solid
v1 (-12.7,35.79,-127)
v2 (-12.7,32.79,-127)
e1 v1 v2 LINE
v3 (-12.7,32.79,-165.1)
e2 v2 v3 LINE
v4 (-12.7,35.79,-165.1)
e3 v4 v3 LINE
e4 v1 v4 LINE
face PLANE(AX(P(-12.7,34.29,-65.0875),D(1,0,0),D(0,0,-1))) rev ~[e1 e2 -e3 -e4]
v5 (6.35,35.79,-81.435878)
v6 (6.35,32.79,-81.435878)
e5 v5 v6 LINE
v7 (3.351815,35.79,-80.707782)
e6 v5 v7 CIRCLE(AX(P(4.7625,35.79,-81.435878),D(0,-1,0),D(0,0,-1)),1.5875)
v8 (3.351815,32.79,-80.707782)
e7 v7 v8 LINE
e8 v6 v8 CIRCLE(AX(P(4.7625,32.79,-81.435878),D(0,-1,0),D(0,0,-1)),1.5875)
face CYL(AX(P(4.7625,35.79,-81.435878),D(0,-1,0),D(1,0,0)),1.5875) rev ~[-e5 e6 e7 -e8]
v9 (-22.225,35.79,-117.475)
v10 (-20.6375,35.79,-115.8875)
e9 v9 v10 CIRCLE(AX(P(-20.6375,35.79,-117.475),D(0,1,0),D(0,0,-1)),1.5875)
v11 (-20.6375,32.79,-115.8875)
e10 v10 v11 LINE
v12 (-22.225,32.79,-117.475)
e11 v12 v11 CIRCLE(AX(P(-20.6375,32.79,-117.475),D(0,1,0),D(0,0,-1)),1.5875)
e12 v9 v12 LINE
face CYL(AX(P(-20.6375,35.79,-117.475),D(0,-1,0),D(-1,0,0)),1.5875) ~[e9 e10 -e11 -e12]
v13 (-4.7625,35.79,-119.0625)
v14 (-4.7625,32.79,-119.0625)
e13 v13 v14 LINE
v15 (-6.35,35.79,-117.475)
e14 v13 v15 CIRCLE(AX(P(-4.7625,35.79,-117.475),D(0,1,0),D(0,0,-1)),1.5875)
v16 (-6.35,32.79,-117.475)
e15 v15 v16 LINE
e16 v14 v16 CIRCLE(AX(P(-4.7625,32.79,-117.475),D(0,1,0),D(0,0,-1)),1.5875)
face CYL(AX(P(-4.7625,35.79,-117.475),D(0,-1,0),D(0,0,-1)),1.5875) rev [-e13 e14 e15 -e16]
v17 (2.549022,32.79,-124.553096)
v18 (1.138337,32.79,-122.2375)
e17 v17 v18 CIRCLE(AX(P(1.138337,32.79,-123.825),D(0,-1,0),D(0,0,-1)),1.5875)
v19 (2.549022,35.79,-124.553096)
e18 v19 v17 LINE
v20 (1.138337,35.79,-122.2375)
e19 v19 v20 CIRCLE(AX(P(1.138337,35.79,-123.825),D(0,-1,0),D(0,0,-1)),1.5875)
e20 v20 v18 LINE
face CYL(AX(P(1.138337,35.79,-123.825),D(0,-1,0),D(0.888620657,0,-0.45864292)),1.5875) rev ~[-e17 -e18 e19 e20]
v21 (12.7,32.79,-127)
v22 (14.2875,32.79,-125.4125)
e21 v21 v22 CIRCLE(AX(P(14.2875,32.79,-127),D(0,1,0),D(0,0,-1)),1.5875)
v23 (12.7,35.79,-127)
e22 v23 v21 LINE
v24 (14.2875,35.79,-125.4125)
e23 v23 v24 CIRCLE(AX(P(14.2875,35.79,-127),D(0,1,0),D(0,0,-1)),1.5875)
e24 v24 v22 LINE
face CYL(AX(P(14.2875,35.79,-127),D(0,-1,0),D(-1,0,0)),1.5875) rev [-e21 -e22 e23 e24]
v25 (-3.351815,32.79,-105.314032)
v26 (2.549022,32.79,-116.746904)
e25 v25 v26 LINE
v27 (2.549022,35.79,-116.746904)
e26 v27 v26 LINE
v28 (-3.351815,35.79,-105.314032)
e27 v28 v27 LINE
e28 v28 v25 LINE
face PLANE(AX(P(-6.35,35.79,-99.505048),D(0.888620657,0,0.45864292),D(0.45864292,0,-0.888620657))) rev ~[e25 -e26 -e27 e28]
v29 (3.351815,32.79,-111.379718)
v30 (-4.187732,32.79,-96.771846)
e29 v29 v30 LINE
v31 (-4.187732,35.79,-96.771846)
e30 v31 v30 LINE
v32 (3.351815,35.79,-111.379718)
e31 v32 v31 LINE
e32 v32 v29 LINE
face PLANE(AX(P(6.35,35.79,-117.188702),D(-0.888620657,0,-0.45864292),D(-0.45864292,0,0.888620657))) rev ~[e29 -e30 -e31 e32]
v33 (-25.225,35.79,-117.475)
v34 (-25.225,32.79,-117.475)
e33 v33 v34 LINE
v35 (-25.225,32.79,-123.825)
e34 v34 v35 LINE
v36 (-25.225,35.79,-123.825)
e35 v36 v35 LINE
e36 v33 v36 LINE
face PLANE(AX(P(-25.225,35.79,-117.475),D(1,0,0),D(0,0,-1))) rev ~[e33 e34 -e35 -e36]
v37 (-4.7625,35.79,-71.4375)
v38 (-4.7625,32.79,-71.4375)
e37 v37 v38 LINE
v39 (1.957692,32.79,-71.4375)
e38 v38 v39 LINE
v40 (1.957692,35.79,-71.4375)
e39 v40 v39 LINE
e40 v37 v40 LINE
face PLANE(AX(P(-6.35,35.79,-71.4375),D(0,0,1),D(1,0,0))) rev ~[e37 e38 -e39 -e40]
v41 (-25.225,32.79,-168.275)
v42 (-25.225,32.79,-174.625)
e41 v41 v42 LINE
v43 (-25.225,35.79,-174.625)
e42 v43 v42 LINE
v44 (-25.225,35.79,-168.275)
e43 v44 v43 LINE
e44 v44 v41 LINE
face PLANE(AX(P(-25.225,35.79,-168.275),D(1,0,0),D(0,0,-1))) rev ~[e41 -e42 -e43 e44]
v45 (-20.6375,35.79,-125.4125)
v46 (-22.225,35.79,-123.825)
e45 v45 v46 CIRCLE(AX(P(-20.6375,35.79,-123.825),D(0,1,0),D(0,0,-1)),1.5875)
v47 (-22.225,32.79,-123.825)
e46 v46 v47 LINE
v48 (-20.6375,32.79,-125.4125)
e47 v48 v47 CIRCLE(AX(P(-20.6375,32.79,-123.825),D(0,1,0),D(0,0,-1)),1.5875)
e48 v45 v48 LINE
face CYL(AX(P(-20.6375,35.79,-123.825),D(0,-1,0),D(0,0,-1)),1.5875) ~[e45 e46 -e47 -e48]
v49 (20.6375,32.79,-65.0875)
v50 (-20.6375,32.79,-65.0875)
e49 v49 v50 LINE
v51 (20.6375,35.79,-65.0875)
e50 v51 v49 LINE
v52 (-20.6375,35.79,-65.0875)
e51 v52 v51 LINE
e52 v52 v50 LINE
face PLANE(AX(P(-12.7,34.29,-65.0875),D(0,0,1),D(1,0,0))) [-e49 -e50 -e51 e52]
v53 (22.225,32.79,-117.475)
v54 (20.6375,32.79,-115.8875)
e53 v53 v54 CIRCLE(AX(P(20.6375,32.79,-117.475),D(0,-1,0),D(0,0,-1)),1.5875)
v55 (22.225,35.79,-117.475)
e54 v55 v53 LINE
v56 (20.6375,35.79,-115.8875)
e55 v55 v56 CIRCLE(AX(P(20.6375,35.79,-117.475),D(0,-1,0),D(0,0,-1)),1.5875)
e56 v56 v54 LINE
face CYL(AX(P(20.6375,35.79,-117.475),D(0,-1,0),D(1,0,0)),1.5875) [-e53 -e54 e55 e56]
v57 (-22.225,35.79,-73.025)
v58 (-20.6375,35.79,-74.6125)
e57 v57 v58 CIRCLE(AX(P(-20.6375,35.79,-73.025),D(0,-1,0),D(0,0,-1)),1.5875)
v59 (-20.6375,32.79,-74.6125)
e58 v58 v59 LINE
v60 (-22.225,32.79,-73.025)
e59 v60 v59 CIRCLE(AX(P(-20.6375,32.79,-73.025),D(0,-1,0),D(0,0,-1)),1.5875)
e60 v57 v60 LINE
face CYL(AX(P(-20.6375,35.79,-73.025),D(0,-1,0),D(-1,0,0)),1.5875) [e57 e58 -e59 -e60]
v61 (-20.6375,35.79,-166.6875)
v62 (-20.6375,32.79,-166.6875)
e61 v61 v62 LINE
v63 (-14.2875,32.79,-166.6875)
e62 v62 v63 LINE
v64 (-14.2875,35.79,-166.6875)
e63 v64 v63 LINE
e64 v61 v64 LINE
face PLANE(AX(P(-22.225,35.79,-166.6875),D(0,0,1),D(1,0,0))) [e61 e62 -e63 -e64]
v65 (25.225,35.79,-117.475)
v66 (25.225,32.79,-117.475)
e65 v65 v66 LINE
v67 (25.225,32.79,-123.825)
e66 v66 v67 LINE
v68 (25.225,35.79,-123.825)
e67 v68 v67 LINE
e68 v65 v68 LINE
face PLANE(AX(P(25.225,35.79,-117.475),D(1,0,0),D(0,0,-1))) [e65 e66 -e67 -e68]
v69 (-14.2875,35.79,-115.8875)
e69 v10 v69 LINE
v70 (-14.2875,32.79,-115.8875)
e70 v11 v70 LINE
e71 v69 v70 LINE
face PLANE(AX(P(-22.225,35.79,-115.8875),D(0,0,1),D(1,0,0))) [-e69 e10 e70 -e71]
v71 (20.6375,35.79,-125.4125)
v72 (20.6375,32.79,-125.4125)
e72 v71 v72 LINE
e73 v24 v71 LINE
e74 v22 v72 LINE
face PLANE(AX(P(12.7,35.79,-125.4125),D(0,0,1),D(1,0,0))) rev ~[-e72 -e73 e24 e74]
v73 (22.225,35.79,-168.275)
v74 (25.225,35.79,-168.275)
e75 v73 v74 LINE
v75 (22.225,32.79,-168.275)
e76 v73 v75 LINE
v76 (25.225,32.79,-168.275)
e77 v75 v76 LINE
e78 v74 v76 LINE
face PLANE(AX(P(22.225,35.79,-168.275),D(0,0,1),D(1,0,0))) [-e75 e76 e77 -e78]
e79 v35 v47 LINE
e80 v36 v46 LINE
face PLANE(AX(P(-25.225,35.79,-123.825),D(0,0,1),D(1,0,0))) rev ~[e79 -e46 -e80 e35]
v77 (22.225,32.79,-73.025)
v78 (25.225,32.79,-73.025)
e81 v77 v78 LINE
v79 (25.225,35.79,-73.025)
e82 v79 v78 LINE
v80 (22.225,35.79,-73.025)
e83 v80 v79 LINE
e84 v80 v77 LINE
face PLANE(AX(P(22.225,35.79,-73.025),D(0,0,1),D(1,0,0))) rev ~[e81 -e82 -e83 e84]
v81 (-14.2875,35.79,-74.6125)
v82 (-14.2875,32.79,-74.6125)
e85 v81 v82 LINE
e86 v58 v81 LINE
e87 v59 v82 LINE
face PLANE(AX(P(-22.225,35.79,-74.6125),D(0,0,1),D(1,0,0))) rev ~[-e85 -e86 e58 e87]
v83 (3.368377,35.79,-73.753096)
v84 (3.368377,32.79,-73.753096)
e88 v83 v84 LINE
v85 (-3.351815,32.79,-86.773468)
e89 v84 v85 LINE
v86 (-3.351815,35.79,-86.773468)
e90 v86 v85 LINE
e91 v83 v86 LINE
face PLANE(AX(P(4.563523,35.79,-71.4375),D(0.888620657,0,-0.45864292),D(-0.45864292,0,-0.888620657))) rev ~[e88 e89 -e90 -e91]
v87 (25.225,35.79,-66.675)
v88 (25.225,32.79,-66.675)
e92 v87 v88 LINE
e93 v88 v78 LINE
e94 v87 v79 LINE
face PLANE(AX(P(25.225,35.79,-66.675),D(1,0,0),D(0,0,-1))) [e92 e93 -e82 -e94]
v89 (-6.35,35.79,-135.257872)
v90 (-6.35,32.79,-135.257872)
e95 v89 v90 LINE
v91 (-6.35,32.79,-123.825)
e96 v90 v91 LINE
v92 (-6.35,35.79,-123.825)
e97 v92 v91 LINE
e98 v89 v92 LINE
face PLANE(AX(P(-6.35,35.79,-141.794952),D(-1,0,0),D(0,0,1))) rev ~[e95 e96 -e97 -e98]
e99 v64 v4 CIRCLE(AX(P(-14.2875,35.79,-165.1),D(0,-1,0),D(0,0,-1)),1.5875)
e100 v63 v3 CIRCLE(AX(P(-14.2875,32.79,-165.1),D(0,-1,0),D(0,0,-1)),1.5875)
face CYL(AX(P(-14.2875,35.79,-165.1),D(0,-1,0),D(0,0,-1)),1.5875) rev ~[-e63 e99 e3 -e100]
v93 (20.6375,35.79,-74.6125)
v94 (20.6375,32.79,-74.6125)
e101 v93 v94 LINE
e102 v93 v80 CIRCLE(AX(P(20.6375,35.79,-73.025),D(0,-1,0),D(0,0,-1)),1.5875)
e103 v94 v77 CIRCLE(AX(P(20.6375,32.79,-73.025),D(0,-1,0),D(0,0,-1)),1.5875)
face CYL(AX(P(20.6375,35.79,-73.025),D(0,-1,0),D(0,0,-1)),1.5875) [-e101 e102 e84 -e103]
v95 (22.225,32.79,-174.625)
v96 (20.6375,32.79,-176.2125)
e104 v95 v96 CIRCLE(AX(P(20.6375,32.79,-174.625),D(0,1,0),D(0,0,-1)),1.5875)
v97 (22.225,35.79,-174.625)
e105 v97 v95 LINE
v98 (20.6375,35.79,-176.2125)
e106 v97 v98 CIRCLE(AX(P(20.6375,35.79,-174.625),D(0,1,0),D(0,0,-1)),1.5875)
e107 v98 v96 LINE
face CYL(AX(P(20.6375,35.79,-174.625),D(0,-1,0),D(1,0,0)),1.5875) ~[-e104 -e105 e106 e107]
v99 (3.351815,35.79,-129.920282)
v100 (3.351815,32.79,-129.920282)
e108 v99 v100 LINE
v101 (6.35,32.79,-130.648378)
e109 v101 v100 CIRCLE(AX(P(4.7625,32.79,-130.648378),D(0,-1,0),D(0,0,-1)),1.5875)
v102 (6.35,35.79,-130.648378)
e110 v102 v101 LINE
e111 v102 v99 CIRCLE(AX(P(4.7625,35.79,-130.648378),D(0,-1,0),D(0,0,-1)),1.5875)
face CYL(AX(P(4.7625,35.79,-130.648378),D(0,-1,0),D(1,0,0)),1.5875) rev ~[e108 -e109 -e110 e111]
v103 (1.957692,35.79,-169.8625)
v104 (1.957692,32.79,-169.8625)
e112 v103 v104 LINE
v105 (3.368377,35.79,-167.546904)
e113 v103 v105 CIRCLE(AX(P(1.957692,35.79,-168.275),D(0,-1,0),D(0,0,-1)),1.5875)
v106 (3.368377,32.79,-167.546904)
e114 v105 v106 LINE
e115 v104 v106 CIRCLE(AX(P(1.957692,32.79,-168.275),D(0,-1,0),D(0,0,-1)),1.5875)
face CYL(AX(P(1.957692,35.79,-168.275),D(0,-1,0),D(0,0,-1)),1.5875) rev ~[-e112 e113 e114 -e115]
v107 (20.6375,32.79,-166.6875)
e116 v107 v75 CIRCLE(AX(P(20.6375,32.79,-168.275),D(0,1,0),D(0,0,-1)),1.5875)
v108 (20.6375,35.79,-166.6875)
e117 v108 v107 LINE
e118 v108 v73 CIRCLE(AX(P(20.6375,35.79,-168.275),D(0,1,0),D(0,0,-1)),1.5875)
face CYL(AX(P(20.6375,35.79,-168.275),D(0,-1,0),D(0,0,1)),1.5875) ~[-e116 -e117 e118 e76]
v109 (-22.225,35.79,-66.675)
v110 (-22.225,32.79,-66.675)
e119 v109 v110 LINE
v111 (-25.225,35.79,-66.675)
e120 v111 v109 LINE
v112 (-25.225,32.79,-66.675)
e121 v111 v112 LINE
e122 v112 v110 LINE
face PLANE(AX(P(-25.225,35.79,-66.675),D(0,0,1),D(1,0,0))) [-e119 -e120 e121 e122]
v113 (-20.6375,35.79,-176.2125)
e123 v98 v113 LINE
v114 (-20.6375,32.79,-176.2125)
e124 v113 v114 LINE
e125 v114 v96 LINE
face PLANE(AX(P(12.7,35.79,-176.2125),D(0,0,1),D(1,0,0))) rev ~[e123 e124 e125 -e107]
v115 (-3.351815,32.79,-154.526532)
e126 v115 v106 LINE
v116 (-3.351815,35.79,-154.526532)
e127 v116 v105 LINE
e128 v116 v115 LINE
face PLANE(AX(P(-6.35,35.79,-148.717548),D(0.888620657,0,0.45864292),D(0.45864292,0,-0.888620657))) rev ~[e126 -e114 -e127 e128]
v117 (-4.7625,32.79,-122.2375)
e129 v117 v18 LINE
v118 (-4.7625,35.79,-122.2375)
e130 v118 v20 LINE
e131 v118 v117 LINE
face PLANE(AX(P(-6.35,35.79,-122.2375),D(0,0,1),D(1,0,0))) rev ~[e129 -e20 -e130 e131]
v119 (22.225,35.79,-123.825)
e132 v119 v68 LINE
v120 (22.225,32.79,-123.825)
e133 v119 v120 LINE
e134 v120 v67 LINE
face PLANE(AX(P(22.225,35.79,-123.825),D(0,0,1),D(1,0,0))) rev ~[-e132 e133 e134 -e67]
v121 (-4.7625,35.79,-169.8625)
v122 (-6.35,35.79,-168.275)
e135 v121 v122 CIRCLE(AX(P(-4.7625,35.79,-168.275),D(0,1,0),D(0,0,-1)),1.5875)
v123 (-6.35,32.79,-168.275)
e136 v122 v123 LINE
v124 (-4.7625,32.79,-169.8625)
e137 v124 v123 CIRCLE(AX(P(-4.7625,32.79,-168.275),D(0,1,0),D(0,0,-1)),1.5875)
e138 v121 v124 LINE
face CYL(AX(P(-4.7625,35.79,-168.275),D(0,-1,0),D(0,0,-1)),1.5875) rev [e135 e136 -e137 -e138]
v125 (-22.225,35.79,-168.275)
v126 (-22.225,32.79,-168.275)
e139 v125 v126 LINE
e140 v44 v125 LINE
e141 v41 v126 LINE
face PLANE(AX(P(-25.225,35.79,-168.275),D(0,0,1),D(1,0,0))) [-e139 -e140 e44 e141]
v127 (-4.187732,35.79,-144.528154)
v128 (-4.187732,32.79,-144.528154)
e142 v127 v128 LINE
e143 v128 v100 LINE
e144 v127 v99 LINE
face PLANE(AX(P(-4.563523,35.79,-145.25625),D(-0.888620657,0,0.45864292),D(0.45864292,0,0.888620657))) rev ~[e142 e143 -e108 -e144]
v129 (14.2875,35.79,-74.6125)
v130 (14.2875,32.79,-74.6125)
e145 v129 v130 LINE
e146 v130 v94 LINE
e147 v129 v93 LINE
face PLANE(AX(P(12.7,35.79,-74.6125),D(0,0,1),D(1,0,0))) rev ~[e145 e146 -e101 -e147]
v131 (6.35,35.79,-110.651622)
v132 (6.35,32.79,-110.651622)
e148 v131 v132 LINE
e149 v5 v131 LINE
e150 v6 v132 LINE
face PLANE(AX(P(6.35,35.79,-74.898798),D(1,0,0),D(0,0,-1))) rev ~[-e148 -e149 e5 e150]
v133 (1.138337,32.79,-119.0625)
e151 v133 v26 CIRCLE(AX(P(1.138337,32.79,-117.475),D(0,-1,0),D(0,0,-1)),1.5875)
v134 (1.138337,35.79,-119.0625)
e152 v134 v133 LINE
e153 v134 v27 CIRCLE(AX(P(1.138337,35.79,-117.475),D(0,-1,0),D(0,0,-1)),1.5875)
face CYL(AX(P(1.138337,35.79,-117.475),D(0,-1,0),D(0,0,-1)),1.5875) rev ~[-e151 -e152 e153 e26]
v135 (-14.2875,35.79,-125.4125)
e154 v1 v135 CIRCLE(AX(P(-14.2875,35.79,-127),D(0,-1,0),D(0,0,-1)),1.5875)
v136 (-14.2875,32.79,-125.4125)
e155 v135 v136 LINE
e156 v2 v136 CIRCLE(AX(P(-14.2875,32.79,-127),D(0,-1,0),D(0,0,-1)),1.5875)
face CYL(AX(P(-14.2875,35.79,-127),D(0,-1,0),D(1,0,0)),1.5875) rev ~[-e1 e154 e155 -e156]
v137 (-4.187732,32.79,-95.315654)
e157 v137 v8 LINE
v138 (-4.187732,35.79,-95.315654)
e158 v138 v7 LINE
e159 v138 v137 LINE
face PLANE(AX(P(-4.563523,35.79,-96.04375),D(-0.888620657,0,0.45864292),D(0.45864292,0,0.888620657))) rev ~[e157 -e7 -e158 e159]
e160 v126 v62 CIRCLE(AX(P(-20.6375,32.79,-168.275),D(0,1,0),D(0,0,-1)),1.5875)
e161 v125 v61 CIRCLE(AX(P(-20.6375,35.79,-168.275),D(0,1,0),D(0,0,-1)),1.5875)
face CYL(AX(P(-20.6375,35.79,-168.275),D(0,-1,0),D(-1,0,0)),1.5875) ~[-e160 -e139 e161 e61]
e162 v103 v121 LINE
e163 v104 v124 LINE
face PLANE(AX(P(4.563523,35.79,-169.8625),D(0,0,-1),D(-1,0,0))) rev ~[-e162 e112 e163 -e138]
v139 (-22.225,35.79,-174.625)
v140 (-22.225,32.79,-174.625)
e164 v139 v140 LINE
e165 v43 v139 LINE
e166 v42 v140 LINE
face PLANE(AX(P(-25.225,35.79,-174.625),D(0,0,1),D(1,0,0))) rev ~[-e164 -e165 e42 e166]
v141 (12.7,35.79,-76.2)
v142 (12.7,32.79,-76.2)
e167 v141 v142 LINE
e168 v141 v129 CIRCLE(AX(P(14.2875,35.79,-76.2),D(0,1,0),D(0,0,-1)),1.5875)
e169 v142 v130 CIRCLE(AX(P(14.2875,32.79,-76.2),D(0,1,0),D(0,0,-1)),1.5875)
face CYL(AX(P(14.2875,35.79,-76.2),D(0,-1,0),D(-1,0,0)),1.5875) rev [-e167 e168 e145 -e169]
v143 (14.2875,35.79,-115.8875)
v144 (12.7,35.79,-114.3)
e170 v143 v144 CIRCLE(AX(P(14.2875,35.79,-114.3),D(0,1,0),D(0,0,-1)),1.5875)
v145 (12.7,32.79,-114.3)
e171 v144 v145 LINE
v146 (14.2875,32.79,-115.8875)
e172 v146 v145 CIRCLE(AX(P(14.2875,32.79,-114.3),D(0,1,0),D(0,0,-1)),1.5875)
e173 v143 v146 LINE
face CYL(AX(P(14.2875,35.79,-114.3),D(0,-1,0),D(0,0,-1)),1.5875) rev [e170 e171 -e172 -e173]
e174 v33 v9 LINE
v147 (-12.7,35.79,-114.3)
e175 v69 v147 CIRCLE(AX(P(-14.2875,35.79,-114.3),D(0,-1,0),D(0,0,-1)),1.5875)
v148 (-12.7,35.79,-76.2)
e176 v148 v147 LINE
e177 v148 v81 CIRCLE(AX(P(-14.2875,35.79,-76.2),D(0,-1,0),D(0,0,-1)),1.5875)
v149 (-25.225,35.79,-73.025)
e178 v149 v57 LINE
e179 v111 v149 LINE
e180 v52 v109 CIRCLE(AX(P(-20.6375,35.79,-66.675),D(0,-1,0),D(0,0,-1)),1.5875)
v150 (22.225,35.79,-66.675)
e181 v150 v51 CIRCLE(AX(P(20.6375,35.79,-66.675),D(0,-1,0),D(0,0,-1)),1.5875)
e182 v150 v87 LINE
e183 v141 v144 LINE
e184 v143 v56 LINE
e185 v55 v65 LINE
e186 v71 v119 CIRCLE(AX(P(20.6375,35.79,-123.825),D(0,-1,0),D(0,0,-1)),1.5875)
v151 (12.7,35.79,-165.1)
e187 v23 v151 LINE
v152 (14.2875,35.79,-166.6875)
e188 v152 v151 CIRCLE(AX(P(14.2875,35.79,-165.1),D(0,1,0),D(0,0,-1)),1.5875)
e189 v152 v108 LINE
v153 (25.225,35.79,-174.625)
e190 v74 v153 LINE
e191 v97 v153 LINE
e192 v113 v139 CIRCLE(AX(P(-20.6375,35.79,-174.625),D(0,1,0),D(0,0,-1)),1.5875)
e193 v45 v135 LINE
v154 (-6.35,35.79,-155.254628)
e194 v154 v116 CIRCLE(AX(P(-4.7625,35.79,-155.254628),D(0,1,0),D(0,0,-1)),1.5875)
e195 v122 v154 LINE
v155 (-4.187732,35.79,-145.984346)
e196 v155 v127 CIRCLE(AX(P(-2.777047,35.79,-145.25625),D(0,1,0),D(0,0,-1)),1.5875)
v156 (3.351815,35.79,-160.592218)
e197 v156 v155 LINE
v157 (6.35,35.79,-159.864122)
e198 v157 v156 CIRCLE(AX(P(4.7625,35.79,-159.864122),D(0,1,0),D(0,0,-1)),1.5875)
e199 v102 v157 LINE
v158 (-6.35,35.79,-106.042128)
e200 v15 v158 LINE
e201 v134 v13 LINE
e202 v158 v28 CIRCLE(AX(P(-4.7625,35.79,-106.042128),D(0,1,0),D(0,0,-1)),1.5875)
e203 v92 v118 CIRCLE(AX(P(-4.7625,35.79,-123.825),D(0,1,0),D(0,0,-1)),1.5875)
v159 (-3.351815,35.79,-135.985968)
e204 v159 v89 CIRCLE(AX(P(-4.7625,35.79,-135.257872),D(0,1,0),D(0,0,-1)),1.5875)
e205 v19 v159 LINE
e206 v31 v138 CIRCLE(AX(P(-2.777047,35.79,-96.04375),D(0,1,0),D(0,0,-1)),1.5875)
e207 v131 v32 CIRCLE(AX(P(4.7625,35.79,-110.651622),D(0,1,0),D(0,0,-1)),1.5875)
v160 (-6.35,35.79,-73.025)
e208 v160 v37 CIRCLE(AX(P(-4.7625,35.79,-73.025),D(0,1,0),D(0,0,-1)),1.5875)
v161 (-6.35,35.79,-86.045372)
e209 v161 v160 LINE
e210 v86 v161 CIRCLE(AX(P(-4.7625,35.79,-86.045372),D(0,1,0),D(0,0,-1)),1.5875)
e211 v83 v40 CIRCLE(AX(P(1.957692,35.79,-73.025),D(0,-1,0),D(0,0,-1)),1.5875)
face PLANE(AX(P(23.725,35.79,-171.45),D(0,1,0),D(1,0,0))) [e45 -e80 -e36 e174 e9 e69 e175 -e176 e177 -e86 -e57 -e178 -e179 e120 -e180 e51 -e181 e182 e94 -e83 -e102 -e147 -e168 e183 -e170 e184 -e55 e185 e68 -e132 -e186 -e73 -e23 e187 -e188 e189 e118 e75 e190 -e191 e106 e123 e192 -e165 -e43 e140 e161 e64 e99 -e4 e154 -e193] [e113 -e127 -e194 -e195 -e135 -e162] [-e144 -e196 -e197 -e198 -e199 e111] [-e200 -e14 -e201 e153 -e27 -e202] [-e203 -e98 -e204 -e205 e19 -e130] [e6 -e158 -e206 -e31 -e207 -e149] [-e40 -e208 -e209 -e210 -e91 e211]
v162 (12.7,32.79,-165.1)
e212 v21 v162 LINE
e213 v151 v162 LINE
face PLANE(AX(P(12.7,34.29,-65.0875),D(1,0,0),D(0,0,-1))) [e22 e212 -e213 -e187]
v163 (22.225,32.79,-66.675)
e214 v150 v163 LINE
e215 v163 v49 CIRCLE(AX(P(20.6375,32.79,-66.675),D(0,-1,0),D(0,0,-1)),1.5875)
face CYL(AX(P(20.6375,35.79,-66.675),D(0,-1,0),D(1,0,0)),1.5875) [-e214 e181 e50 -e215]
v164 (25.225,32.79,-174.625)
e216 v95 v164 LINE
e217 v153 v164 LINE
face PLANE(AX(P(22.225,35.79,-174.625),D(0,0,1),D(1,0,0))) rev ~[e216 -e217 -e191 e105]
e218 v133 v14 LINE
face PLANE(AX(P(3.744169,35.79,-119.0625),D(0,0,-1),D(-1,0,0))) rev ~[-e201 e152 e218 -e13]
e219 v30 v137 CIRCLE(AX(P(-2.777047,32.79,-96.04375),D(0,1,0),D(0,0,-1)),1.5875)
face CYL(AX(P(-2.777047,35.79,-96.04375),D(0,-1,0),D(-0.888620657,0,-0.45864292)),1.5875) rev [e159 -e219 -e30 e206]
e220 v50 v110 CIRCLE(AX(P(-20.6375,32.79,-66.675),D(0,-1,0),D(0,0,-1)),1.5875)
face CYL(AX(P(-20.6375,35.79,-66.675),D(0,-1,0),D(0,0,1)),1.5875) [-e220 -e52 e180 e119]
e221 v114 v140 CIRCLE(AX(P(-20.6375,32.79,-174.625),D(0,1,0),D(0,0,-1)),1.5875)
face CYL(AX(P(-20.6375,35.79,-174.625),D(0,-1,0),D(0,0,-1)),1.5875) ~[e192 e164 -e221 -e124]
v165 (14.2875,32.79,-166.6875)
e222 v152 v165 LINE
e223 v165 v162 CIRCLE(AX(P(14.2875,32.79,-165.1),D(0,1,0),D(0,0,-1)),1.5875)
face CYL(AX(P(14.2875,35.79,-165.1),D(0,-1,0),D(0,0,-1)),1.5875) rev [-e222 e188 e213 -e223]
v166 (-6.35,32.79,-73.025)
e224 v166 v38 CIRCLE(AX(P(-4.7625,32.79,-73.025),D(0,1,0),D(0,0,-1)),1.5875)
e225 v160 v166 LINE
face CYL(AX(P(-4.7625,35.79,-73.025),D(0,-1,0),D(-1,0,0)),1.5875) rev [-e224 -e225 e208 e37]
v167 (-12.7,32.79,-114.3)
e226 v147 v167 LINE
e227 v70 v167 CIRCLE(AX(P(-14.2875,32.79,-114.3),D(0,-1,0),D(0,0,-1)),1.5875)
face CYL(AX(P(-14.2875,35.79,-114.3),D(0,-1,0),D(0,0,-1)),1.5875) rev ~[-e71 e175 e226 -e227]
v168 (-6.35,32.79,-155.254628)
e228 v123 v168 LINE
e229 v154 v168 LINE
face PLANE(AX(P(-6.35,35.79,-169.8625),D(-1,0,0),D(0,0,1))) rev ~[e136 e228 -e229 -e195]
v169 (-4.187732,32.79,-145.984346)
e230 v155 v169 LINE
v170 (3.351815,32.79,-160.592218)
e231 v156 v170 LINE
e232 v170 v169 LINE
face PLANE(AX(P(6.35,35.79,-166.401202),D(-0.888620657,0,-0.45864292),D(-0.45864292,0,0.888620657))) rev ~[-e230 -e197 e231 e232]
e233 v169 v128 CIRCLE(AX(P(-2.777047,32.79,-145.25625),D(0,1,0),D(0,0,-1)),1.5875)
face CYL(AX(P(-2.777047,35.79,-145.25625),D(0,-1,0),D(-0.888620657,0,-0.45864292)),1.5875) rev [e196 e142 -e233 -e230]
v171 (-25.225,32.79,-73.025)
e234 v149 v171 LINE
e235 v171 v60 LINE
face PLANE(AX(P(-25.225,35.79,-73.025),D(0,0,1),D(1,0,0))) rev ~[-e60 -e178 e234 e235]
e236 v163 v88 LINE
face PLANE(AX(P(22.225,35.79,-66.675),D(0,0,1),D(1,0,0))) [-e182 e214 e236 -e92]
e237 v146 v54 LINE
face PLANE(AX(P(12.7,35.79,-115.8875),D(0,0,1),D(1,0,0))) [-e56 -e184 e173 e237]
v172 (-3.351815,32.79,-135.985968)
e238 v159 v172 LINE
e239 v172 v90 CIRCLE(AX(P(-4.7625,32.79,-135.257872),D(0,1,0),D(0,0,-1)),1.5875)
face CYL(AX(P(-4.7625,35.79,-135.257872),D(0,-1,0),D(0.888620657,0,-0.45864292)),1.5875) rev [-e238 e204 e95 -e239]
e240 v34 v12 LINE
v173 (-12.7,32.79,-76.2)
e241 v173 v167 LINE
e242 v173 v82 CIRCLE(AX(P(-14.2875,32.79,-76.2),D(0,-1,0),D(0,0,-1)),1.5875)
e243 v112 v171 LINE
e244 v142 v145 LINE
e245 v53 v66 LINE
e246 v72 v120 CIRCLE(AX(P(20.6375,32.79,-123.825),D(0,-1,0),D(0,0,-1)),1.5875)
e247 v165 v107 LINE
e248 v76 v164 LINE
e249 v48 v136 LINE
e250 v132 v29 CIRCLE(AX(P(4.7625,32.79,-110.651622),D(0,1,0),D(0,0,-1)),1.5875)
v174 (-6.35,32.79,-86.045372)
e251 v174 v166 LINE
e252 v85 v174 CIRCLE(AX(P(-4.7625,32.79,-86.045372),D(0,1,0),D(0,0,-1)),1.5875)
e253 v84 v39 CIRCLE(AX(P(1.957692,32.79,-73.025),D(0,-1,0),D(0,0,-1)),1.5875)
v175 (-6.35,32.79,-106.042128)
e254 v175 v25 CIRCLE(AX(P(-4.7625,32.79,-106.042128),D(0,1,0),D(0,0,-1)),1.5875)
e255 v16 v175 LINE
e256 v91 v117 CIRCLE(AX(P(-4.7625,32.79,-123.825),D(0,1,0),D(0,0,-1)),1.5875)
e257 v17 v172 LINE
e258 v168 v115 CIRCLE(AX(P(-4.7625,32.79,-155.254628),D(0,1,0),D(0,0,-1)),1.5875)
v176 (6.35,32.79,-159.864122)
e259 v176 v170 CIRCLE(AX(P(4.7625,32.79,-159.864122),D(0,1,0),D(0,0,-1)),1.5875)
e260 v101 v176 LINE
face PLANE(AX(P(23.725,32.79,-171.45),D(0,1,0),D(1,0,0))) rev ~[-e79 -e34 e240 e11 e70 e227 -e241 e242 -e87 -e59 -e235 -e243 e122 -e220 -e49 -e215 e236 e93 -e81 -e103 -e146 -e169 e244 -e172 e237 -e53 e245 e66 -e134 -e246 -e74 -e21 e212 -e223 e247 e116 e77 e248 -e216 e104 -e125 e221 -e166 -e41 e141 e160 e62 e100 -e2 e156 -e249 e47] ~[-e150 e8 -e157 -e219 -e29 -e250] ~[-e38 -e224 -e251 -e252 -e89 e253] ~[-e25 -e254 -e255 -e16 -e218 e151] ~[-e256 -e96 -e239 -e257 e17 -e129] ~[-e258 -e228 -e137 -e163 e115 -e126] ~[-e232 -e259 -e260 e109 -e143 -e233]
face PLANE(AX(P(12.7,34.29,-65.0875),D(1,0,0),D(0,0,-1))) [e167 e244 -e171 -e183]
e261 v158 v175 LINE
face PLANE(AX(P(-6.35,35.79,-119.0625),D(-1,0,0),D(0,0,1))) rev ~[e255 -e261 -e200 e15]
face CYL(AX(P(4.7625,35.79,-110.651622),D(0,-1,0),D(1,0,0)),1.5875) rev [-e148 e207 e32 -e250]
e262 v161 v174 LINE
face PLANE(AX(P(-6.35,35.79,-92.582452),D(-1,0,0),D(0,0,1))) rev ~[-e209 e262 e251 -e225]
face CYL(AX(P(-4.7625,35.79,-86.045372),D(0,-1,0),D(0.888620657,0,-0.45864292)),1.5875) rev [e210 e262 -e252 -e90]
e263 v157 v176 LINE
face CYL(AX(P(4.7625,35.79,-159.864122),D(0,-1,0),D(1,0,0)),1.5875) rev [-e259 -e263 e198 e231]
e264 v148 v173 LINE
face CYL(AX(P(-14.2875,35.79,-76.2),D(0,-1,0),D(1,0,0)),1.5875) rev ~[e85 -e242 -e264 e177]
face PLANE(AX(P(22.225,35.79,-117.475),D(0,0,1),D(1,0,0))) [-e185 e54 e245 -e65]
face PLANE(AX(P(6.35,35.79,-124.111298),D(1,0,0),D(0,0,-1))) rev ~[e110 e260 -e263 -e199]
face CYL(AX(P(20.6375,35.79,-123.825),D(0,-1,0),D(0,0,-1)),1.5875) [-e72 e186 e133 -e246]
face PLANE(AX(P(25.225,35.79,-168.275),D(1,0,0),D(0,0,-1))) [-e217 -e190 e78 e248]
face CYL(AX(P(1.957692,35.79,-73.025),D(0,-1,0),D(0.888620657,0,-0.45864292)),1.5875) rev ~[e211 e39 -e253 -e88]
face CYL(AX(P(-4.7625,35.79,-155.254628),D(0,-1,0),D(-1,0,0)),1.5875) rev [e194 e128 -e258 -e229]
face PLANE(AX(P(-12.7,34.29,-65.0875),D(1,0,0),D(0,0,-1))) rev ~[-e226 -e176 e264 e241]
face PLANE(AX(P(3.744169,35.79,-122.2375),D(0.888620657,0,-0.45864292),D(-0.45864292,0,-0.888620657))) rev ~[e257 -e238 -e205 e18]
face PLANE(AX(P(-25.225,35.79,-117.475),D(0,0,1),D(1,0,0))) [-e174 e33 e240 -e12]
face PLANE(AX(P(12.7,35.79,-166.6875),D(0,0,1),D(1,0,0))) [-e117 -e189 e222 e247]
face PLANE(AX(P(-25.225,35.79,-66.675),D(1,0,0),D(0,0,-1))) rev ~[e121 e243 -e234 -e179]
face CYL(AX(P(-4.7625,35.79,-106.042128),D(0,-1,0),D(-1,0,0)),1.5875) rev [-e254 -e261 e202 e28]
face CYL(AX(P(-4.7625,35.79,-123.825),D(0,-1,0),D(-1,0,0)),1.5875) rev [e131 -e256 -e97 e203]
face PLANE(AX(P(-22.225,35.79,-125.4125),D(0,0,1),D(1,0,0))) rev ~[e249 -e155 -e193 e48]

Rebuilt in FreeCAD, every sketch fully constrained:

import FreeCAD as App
import Part
import Sketcher
from FreeCAD import Vector
Q = App.Units.Quantity


def edges_at(feature, points):
    """Names of the edges that pass closest to the given points."""
    edges = feature.Shape.Edges
    near = lambda p: min(range(len(edges)), key=lambda i: edges[i].distToShape(Part.Vertex(*p))[0])
    return sorted({f"Edge{near(p) + 1}" for p in points})

doc = App.newDocument("Part")
params = doc.addObject("Spreadsheet::Sheet", "Params")
for row, (alias, value) in enumerate([
    ("sketch1_width", "1 in"),
    ("sketch1_height", "4.375 in"),
    ("pad1_length", "3 mm"),
    ("sketch2_width", "0.375 in"),
    ("pad2_length", "3 mm"),
    ("fillet_radius", "0.0625 in"),
    ("sketch4_height", "0.25 in"),
    ("pad3_length", "3 mm"),
], start=1):
    params.set(f"A{row}", alias)
    params.set(f"B{row}", "=" + value)
    params.setAlias(f"B{row}", alias)

body = doc.addObject("PartDesign::Body", "Body")

# Sketch on XZ plane
sketch1 = doc.addObject("Sketcher::SketchObject", "Sketch")
body.addObject(sketch1)
sketch1.AttachmentSupport = (doc.XZ_Plane, [""])
sketch1.MapMode = "FlatFace"
sketch1.AttachmentOffset = App.Placement(Vector(0, 0, -1.35 * 25.4), App.Rotation())
sketch1.addGeometry(Part.LineSegment(Vector(-13, -176, 0), Vector(-13, -65, 0)), False)
sketch1.addGeometry(Part.LineSegment(Vector(-13, -65, 0), Vector(13, -65, 0)), False)
sketch1.addGeometry(Part.LineSegment(Vector(13, -65, 0), Vector(13, -176, 0)), False)
sketch1.addGeometry(Part.LineSegment(Vector(13, -176, 0), Vector(-13, -176, 0)), False)
sketch1.addConstraint(Sketcher.Constraint("Coincident", 0, 2, 1, 1))
sketch1.addConstraint(Sketcher.Constraint("Coincident", 1, 2, 2, 1))
sketch1.addConstraint(Sketcher.Constraint("Coincident", 2, 2, 3, 1))
sketch1.addConstraint(Sketcher.Constraint("Coincident", 3, 2, 0, 1))
sketch1.addConstraint(Sketcher.Constraint("Vertical", 0))
sketch1.addConstraint(Sketcher.Constraint("Horizontal", 1))
sketch1.addConstraint(Sketcher.Constraint("Vertical", 2))
sketch1.addConstraint(Sketcher.Constraint("Horizontal", 3))
sketch1.addConstraint(Sketcher.Constraint("DistanceX", 1, 1, 1, 2, Q("1 in")))
sketch1.addConstraint(Sketcher.Constraint("DistanceX", 0, 2, -1, 1, Q("0.5 in")))
sketch1.addConstraint(Sketcher.Constraint("DistanceY", 0, 1, 0, 2, Q("4.375 in")))
sketch1.addConstraint(Sketcher.Constraint("DistanceY", 0, 2, -1, 1, Q("2.5625 in")))
sketch1.setExpression("Constraints[8]", "Params.sketch1_width")
sketch1.setExpression("Constraints[10]", "Params.sketch1_height")
pad1 = doc.addObject("PartDesign::Pad", "Pad")
body.addObject(pad1)
pad1.Profile = sketch1
pad1.setExpression("Length", "Params.pad1_length")
pad1.Midplane = True

# Sketch on XZ plane
sketch2 = doc.addObject("Sketcher::SketchObject", "Sketch001")
body.addObject(sketch2)
sketch2.AttachmentSupport = (doc.XZ_Plane, [""])
sketch2.MapMode = "FlatFace"
sketch2.AttachmentOffset = App.Placement(Vector(0, 0, -35.79), App.Rotation())
sketch2.addGeometry(Part.LineSegment(Vector(13, -176, 0), Vector(13, -167, 0)), False)
sketch2.addGeometry(Part.LineSegment(Vector(13, -167, 0), Vector(22, -167, 0)), False)
sketch2.addGeometry(Part.LineSegment(Vector(22, -167, 0), Vector(22, -176, 0)), False)
sketch2.addGeometry(Part.LineSegment(Vector(22, -176, 0), Vector(13, -176, 0)), False)
sketch2.addGeometry(Part.LineSegment(Vector(-22, -176, 0), Vector(-22, -167, 0)), False)
sketch2.addGeometry(Part.LineSegment(Vector(-22, -167, 0), Vector(-13, -167, 0)), False)
sketch2.addGeometry(Part.LineSegment(Vector(-13, -167, 0), Vector(-13, -176, 0)), False)
sketch2.addGeometry(Part.LineSegment(Vector(-13, -176, 0), Vector(-22, -176, 0)), False)
sketch2.addGeometry(Part.LineSegment(Vector(13, -125, 0), Vector(13, -116, 0)), False)
sketch2.addGeometry(Part.LineSegment(Vector(13, -116, 0), Vector(22, -116, 0)), False)
sketch2.addGeometry(Part.LineSegment(Vector(22, -116, 0), Vector(22, -125, 0)), False)
sketch2.addGeometry(Part.LineSegment(Vector(22, -125, 0), Vector(13, -125, 0)), False)
sketch2.addGeometry(Part.LineSegment(Vector(-22, -125, 0), Vector(-22, -116, 0)), False)
sketch2.addGeometry(Part.LineSegment(Vector(-22, -116, 0), Vector(-13, -116, 0)), False)
sketch2.addGeometry(Part.LineSegment(Vector(-13, -116, 0), Vector(-13, -125, 0)), False)
sketch2.addGeometry(Part.LineSegment(Vector(-13, -125, 0), Vector(-22, -125, 0)), False)
sketch2.addGeometry(Part.LineSegment(Vector(13, -75, 0), Vector(13, -65, 0)), False)
sketch2.addGeometry(Part.LineSegment(Vector(13, -65, 0), Vector(22, -65, 0)), False)
sketch2.addGeometry(Part.LineSegment(Vector(22, -65, 0), Vector(22, -75, 0)), False)
sketch2.addGeometry(Part.LineSegment(Vector(22, -75, 0), Vector(13, -75, 0)), False)
sketch2.addGeometry(Part.LineSegment(Vector(-22, -75, 0), Vector(-22, -65, 0)), False)
sketch2.addGeometry(Part.LineSegment(Vector(-22, -65, 0), Vector(-13, -65, 0)), False)
sketch2.addGeometry(Part.LineSegment(Vector(-13, -65, 0), Vector(-13, -75, 0)), False)
sketch2.addGeometry(Part.LineSegment(Vector(-13, -75, 0), Vector(-22, -75, 0)), False)
sketch2.addConstraint(Sketcher.Constraint("Coincident", 0, 2, 1, 1))
sketch2.addConstraint(Sketcher.Constraint("Coincident", 1, 2, 2, 1))
sketch2.addConstraint(Sketcher.Constraint("Coincident", 2, 2, 3, 1))
sketch2.addConstraint(Sketcher.Constraint("Coincident", 3, 2, 0, 1))
sketch2.addConstraint(Sketcher.Constraint("Coincident", 4, 2, 5, 1))
sketch2.addConstraint(Sketcher.Constraint("Coincident", 5, 2, 6, 1))
sketch2.addConstraint(Sketcher.Constraint("Coincident", 6, 2, 7, 1))
sketch2.addConstraint(Sketcher.Constraint("Coincident", 7, 2, 4, 1))
sketch2.addConstraint(Sketcher.Constraint("Coincident", 8, 2, 9, 1))
sketch2.addConstraint(Sketcher.Constraint("Coincident", 9, 2, 10, 1))
sketch2.addConstraint(Sketcher.Constraint("Coincident", 10, 2, 11, 1))
sketch2.addConstraint(Sketcher.Constraint("Coincident", 11, 2, 8, 1))
sketch2.addConstraint(Sketcher.Constraint("Coincident", 12, 2, 13, 1))
sketch2.addConstraint(Sketcher.Constraint("Coincident", 13, 2, 14, 1))
sketch2.addConstraint(Sketcher.Constraint("Coincident", 14, 2, 15, 1))
sketch2.addConstraint(Sketcher.Constraint("Coincident", 15, 2, 12, 1))
sketch2.addConstraint(Sketcher.Constraint("Coincident", 16, 2, 17, 1))
sketch2.addConstraint(Sketcher.Constraint("Coincident", 17, 2, 18, 1))
sketch2.addConstraint(Sketcher.Constraint("Coincident", 18, 2, 19, 1))
sketch2.addConstraint(Sketcher.Constraint("Coincident", 19, 2, 16, 1))
sketch2.addConstraint(Sketcher.Constraint("Coincident", 20, 2, 21, 1))
sketch2.addConstraint(Sketcher.Constraint("Coincident", 21, 2, 22, 1))
sketch2.addConstraint(Sketcher.Constraint("Coincident", 22, 2, 23, 1))
sketch2.addConstraint(Sketcher.Constraint("Coincident", 23, 2, 20, 1))
sketch2.addConstraint(Sketcher.Constraint("Vertical", 0))
sketch2.addConstraint(Sketcher.Constraint("Horizontal", 1))
sketch2.addConstraint(Sketcher.Constraint("Vertical", 2))
sketch2.addConstraint(Sketcher.Constraint("Horizontal", 3))
sketch2.addConstraint(Sketcher.Constraint("Vertical", 4))
sketch2.addConstraint(Sketcher.Constraint("Horizontal", 5))
sketch2.addConstraint(Sketcher.Constraint("Vertical", 6))
sketch2.addConstraint(Sketcher.Constraint("Horizontal", 7))
sketch2.addConstraint(Sketcher.Constraint("Vertical", 8))
sketch2.addConstraint(Sketcher.Constraint("Horizontal", 9))
sketch2.addConstraint(Sketcher.Constraint("Vertical", 10))
sketch2.addConstraint(Sketcher.Constraint("Horizontal", 11))
sketch2.addConstraint(Sketcher.Constraint("Vertical", 12))
sketch2.addConstraint(Sketcher.Constraint("Horizontal", 13))
sketch2.addConstraint(Sketcher.Constraint("Vertical", 14))
sketch2.addConstraint(Sketcher.Constraint("Horizontal", 15))
sketch2.addConstraint(Sketcher.Constraint("Vertical", 16))
sketch2.addConstraint(Sketcher.Constraint("Horizontal", 17))
sketch2.addConstraint(Sketcher.Constraint("Vertical", 18))
sketch2.addConstraint(Sketcher.Constraint("Horizontal", 19))
sketch2.addConstraint(Sketcher.Constraint("Vertical", 20))
sketch2.addConstraint(Sketcher.Constraint("Horizontal", 21))
sketch2.addConstraint(Sketcher.Constraint("Vertical", 22))
sketch2.addConstraint(Sketcher.Constraint("Horizontal", 23))
sketch2.addConstraint(Sketcher.Constraint("Symmetric", 1, 2, 4, 2, -2))
sketch2.addConstraint(Sketcher.Constraint("Symmetric", 3, 2, 6, 2, -2))
sketch2.addConstraint(Sketcher.Constraint("Symmetric", 9, 2, 12, 2, -2))
sketch2.addConstraint(Sketcher.Constraint("Symmetric", 11, 2, 14, 2, -2))
sketch2.addConstraint(Sketcher.Constraint("Symmetric", 17, 2, 20, 2, -2))
sketch2.addConstraint(Sketcher.Constraint("Symmetric", 19, 2, 22, 2, -2))
sketch2.addConstraint(Sketcher.Constraint("Vertical", 3, 2, 8, 2))
sketch2.addConstraint(Sketcher.Constraint("Vertical", 2, 2, 9, 2))
sketch2.addConstraint(Sketcher.Constraint("Vertical", 11, 2, 16, 2))
sketch2.addConstraint(Sketcher.Constraint("Vertical", 10, 2, 17, 2))
sketch2.addConstraint(Sketcher.Constraint("Equal", 23, 0))
sketch2.addConstraint(Sketcher.Constraint("Equal", 6, 8))
sketch2.addConstraint(Sketcher.Constraint("Equal", 14, 16))
sketch2.addConstraint(Sketcher.Constraint("DistanceX", 5, 2, 0, 2, Q("1 in")))
sketch2.addConstraint(Sketcher.Constraint("DistanceY", 0, 2, 8, 2, Q("2 in")))
sketch2.addConstraint(Sketcher.Constraint("DistanceY", 8, 2, 16, 2, Q("2 in")))
sketch2.addConstraint(Sketcher.Constraint("DistanceX", 1, 1, 1, 2, Q("0.375 in")))
sketch2.addConstraint(Sketcher.Constraint("DistanceY", 0, 2, -1, 1, Q("6.5625 in")))
sketch2.setExpression("Constraints[64]", "Params.sketch2_width")
pad2 = doc.addObject("PartDesign::Pad", "Pad001")
body.addObject(pad2)
pad2.Profile = sketch2
pad2.setExpression("Length", "Params.pad2_length")

# Sketch on XZ plane
sketch3 = doc.addObject("Sketcher::SketchObject", "Sketch002")
body.addObject(sketch3)
sketch3.AttachmentSupport = (doc.XZ_Plane, [""])
sketch3.MapMode = "FlatFace"
sketch3.AttachmentOffset = App.Placement(Vector(0, 0, -35.79), App.Rotation())
sketch3.addGeometry(Part.LineSegment(Vector(5, -71, 0), Vector(-6, -93, 0)), False)
sketch3.addGeometry(Part.LineSegment(Vector(-6, -93, 0), Vector(-6, -71, 0)), False)
sketch3.addGeometry(Part.LineSegment(Vector(-6, -71, 0), Vector(5, -71, 0)), False)
sketch3.addGeometry(Part.LineSegment(Vector(6, -75, 0), Vector(6, -117, 0)), False)
sketch3.addGeometry(Part.LineSegment(Vector(6, -117, 0), Vector(-5, -96, 0)), False)
sketch3.addGeometry(Part.LineSegment(Vector(-5, -96, 0), Vector(6, -75, 0)), False)
sketch3.addGeometry(Part.LineSegment(Vector(4, -119, 0), Vector(-6, -119, 0)), False)
sketch3.addGeometry(Part.LineSegment(Vector(-6, -119, 0), Vector(-6, -100, 0)), False)
sketch3.addGeometry(Part.LineSegment(Vector(-6, -100, 0), Vector(4, -119, 0)), False)
sketch3.addGeometry(Part.LineSegment(Vector(4, -122, 0), Vector(-6, -142, 0)), False)
sketch3.addGeometry(Part.LineSegment(Vector(-6, -142, 0), Vector(-6, -122, 0)), False)
sketch3.addGeometry(Part.LineSegment(Vector(-6, -122, 0), Vector(4, -122, 0)), False)
sketch3.addGeometry(Part.LineSegment(Vector(6, -124, 0), Vector(6, -166, 0)), False)
sketch3.addGeometry(Part.LineSegment(Vector(6, -166, 0), Vector(-5, -145, 0)), False)
sketch3.addGeometry(Part.LineSegment(Vector(-5, -145, 0), Vector(6, -124, 0)), False)
sketch3.addGeometry(Part.LineSegment(Vector(5, -170, 0), Vector(-6, -170, 0)), False)
sketch3.addGeometry(Part.LineSegment(Vector(-6, -170, 0), Vector(-6, -149, 0)), False)
sketch3.addGeometry(Part.LineSegment(Vector(-6, -149, 0), Vector(5, -170, 0)), False)
sketch3.addConstraint(Sketcher.Constraint("Coincident", 0, 2, 1, 1))
sketch3.addConstraint(Sketcher.Constraint("Coincident", 1, 2, 2, 1))
sketch3.addConstraint(Sketcher.Constraint("Coincident", 2, 2, 0, 1))
sketch3.addConstraint(Sketcher.Constraint("Coincident", 3, 2, 4, 1))
sketch3.addConstraint(Sketcher.Constraint("Coincident", 4, 2, 5, 1))
sketch3.addConstraint(Sketcher.Constraint("Coincident", 5, 2, 3, 1))
sketch3.addConstraint(Sketcher.Constraint("Coincident", 6, 2, 7, 1))
sketch3.addConstraint(Sketcher.Constraint("Coincident", 7, 2, 8, 1))
sketch3.addConstraint(Sketcher.Constraint("Coincident", 8, 2, 6, 1))
sketch3.addConstraint(Sketcher.Constraint("Coincident", 9, 2, 10, 1))
sketch3.addConstraint(Sketcher.Constraint("Coincident", 10, 2, 11, 1))
sketch3.addConstraint(Sketcher.Constraint("Coincident", 11, 2, 9, 1))
sketch3.addConstraint(Sketcher.Constraint("Coincident", 12, 2, 13, 1))
sketch3.addConstraint(Sketcher.Constraint("Coincident", 13, 2, 14, 1))
sketch3.addConstraint(Sketcher.Constraint("Coincident", 14, 2, 12, 1))
sketch3.addConstraint(Sketcher.Constraint("Coincident", 15, 2, 16, 1))
sketch3.addConstraint(Sketcher.Constraint("Coincident", 16, 2, 17, 1))
sketch3.addConstraint(Sketcher.Constraint("Coincident", 17, 2, 15, 1))
sketch3.addConstraint(Sketcher.Constraint("Vertical", 1))
sketch3.addConstraint(Sketcher.Constraint("Horizontal", 2))
sketch3.addConstraint(Sketcher.Constraint("Vertical", 3))
sketch3.addConstraint(Sketcher.Constraint("Horizontal", 6))
sketch3.addConstraint(Sketcher.Constraint("Vertical", 7))
sketch3.addConstraint(Sketcher.Constraint("Vertical", 10))
sketch3.addConstraint(Sketcher.Constraint("Horizontal", 11))
sketch3.addConstraint(Sketcher.Constraint("Vertical", 12))
sketch3.addConstraint(Sketcher.Constraint("Horizontal", 15))
sketch3.addConstraint(Sketcher.Constraint("Vertical", 16))
sketch3.addConstraint(Sketcher.Constraint("Parallel", 0, 5))
sketch3.addConstraint(Sketcher.Constraint("Parallel", 4, 8))
sketch3.addConstraint(Sketcher.Constraint("Parallel", 5, 9))
sketch3.addConstraint(Sketcher.Constraint("Parallel", 8, 13))
sketch3.addConstraint(Sketcher.Constraint("Parallel", 9, 14))
sketch3.addConstraint(Sketcher.Constraint("Parallel", 13, 17))
sketch3.addConstraint(Sketcher.Constraint("Vertical", 1, 2, 6, 2))
sketch3.addConstraint(Sketcher.Constraint("Vertical", 7, 2, 9, 2))
sketch3.addConstraint(Sketcher.Constraint("Vertical", 8, 2, 11, 2))
sketch3.addConstraint(Sketcher.Constraint("Vertical", 5, 2, 12, 2))
sketch3.addConstraint(Sketcher.Constraint("Vertical", 4, 2, 13, 2))
sketch3.addConstraint(Sketcher.Constraint("Vertical", 10, 2, 15, 2))
sketch3.addConstraint(Sketcher.Constraint("Vertical", 2, 2, 17, 2))
sketch3.addConstraint(Sketcher.Constraint("Equal", 7, 10))
sketch3.addConstraint(Sketcher.Constraint("Equal", 0, 4))
sketch3.addConstraint(Sketcher.Constraint("DistanceX", 0, 2, 3, 2, Q("0.5 in")))
sketch3.addConstraint(Sketcher.Constraint("DistanceX", 0, 2, -1, 1, Q("0.25 in")))
sketch3.addConstraint(Sketcher.Constraint("DistanceY", 1, 2, -1, 1, Q("2.8125 in")))
sketch3.addConstraint(Sketcher.Constraint("DistanceY", 4, 2, -1, 1, Q("3.78125 in")))
sketch3.addConstraint(Sketcher.Constraint("DistanceY", 6, 2, -1, 1, Q("4.6875 in")))
sketch3.addConstraint(Sketcher.Constraint("DistanceY", 10, 2, -1, 1, Q("4.8125 in")))
sketch3.addConstraint(Sketcher.Constraint("DistanceY", 13, 2, -1, 1, Q("5.71875 in")))
sketch3.addConstraint(Sketcher.Constraint("DistanceY", 15, 2, -1, 1, Q("6.6875 in")))
sketch3.addConstraint(Sketcher.Constraint("DistanceY", 7, 2, 5, 2, Q("0.96875 in")))
sketch3.addConstraint(Sketcher.Constraint("DistanceX", 6, 2, 6, 1, 10.094169))
sketch3.addConstraint(Sketcher.Constraint("DistanceY", 1, 1, 1, 2, 21.144952))
pocket1 = doc.addObject("PartDesign::Pocket", "Pocket")
body.addObject(pocket1)
pocket1.Profile = sketch3
pocket1.Type = "ThroughAll"
pocket1.Reversed = True
doc.recompute()

fillet = doc.addObject("PartDesign::Fillet", "Fillet")
body.addObject(fillet)
fillet.Base = (pocket1, edges_at(pocket1, [
    (3.744, 34.29, -119.062),
    (-6.35, 34.29, -99.505),
    (-6.35, 34.29, -119.062),
    (-4.564, 34.29, -96.044),
    (6.35, 34.29, -117.189),
    (6.35, 34.29, -74.899),
    (-4.564, 34.29, -145.256),
    (6.35, 34.29, -166.401),
    (6.35, 34.29, -124.111),
    (3.744, 34.29, -122.237),
    (-6.35, 34.29, -122.237),
    (-6.35, 34.29, -141.795),
    (-6.35, 34.29, -148.718),
    (-6.35, 34.29, -169.863),
    (4.564, 34.29, -169.863),
    (4.564, 34.29, -71.438),
    (-6.35, 34.29, -71.438),
    (-6.35, 34.29, -92.582),
    (22.225, 34.29, -65.088),
    (22.225, 34.29, -74.612),
    (12.7, 34.29, -74.612),
    (-12.7, 34.29, -115.888),
    (-12.7, 34.29, -125.412),
    (-22.225, 34.29, -125.412),
    (-22.225, 34.29, -115.888),
    (22.225, 34.29, -115.888),
    (22.225, 34.29, -125.412),
    (12.7, 34.29, -125.412),
    (12.7, 34.29, -115.888),
    (-12.7, 34.29, -166.688),
    (-22.225, 34.29, -176.213),
    (-22.225, 34.29, -166.688),
    (-12.7, 34.29, -74.612),
    (-22.225, 34.29, -74.612),
    (-22.225, 34.29, -65.088),
    (22.225, 34.29, -166.688),
    (22.225, 34.29, -176.213),
    (12.7, 34.29, -166.688),
]))
fillet.setExpression("Radius", "Params.fillet_radius")

# Sketch on XZ plane
sketch4 = doc.addObject("Sketcher::SketchObject", "Sketch003")
body.addObject(sketch4)
sketch4.AttachmentSupport = (doc.XZ_Plane, [""])
sketch4.MapMode = "FlatFace"
sketch4.AttachmentOffset = App.Placement(Vector(0, 0, -35.79), App.Rotation())
sketch4.addGeometry(Part.LineSegment(Vector(22.2, -174.6, 0), Vector(22.2, -168.3, 0)), False)
sketch4.addGeometry(Part.LineSegment(Vector(22.2, -168.3, 0), Vector(25.2, -168.3, 0)), False)
sketch4.addGeometry(Part.LineSegment(Vector(25.2, -168.3, 0), Vector(25.2, -174.6, 0)), False)
sketch4.addGeometry(Part.LineSegment(Vector(25.2, -174.6, 0), Vector(22.2, -174.6, 0)), False)
sketch4.addGeometry(Part.LineSegment(Vector(-25.2, -174.6, 0), Vector(-25.2, -168.3, 0)), False)
sketch4.addGeometry(Part.LineSegment(Vector(-25.2, -168.3, 0), Vector(-22.2, -168.3, 0)), False)
sketch4.addGeometry(Part.LineSegment(Vector(-22.2, -168.3, 0), Vector(-22.2, -174.6, 0)), False)
sketch4.addGeometry(Part.LineSegment(Vector(-22.2, -174.6, 0), Vector(-25.2, -174.6, 0)), False)
sketch4.addGeometry(Part.LineSegment(Vector(22.2, -123.8, 0), Vector(22.2, -117.5, 0)), False)
sketch4.addGeometry(Part.LineSegment(Vector(22.2, -117.5, 0), Vector(25.2, -117.5, 0)), False)
sketch4.addGeometry(Part.LineSegment(Vector(25.2, -117.5, 0), Vector(25.2, -123.8, 0)), False)
sketch4.addGeometry(Part.LineSegment(Vector(25.2, -123.8, 0), Vector(22.2, -123.8, 0)), False)
sketch4.addGeometry(Part.LineSegment(Vector(-25.2, -123.8, 0), Vector(-25.2, -117.5, 0)), False)
sketch4.addGeometry(Part.LineSegment(Vector(-25.2, -117.5, 0), Vector(-22.2, -117.5, 0)), False)
sketch4.addGeometry(Part.LineSegment(Vector(-22.2, -117.5, 0), Vector(-22.2, -123.8, 0)), False)
sketch4.addGeometry(Part.LineSegment(Vector(-22.2, -123.8, 0), Vector(-25.2, -123.8, 0)), False)
sketch4.addGeometry(Part.LineSegment(Vector(22.2, -73, 0), Vector(22.2, -66.7, 0)), False)
sketch4.addGeometry(Part.LineSegment(Vector(22.2, -66.7, 0), Vector(25.2, -66.7, 0)), False)
sketch4.addGeometry(Part.LineSegment(Vector(25.2, -66.7, 0), Vector(25.2, -73, 0)), False)
sketch4.addGeometry(Part.LineSegment(Vector(25.2, -73, 0), Vector(22.2, -73, 0)), False)
sketch4.addGeometry(Part.LineSegment(Vector(-25.2, -73, 0), Vector(-25.2, -66.7, 0)), False)
sketch4.addGeometry(Part.LineSegment(Vector(-25.2, -66.7, 0), Vector(-22.2, -66.7, 0)), False)
sketch4.addGeometry(Part.LineSegment(Vector(-22.2, -66.7, 0), Vector(-22.2, -73, 0)), False)
sketch4.addGeometry(Part.LineSegment(Vector(-22.2, -73, 0), Vector(-25.2, -73, 0)), False)
sketch4.addConstraint(Sketcher.Constraint("Coincident", 0, 2, 1, 1))
sketch4.addConstraint(Sketcher.Constraint("Coincident", 1, 2, 2, 1))
sketch4.addConstraint(Sketcher.Constraint("Coincident", 2, 2, 3, 1))
sketch4.addConstraint(Sketcher.Constraint("Coincident", 3, 2, 0, 1))
sketch4.addConstraint(Sketcher.Constraint("Coincident", 4, 2, 5, 1))
sketch4.addConstraint(Sketcher.Constraint("Coincident", 5, 2, 6, 1))
sketch4.addConstraint(Sketcher.Constraint("Coincident", 6, 2, 7, 1))
sketch4.addConstraint(Sketcher.Constraint("Coincident", 7, 2, 4, 1))
sketch4.addConstraint(Sketcher.Constraint("Coincident", 8, 2, 9, 1))
sketch4.addConstraint(Sketcher.Constraint("Coincident", 9, 2, 10, 1))
sketch4.addConstraint(Sketcher.Constraint("Coincident", 10, 2, 11, 1))
sketch4.addConstraint(Sketcher.Constraint("Coincident", 11, 2, 8, 1))
sketch4.addConstraint(Sketcher.Constraint("Coincident", 12, 2, 13, 1))
sketch4.addConstraint(Sketcher.Constraint("Coincident", 13, 2, 14, 1))
sketch4.addConstraint(Sketcher.Constraint("Coincident", 14, 2, 15, 1))
sketch4.addConstraint(Sketcher.Constraint("Coincident", 15, 2, 12, 1))
sketch4.addConstraint(Sketcher.Constraint("Coincident", 16, 2, 17, 1))
sketch4.addConstraint(Sketcher.Constraint("Coincident", 17, 2, 18, 1))
sketch4.addConstraint(Sketcher.Constraint("Coincident", 18, 2, 19, 1))
sketch4.addConstraint(Sketcher.Constraint("Coincident", 19, 2, 16, 1))
sketch4.addConstraint(Sketcher.Constraint("Coincident", 20, 2, 21, 1))
sketch4.addConstraint(Sketcher.Constraint("Coincident", 21, 2, 22, 1))
sketch4.addConstraint(Sketcher.Constraint("Coincident", 22, 2, 23, 1))
sketch4.addConstraint(Sketcher.Constraint("Coincident", 23, 2, 20, 1))
sketch4.addConstraint(Sketcher.Constraint("Vertical", 0))
sketch4.addConstraint(Sketcher.Constraint("Horizontal", 1))
sketch4.addConstraint(Sketcher.Constraint("Vertical", 2))
sketch4.addConstraint(Sketcher.Constraint("Horizontal", 3))
sketch4.addConstraint(Sketcher.Constraint("Vertical", 4))
sketch4.addConstraint(Sketcher.Constraint("Horizontal", 5))
sketch4.addConstraint(Sketcher.Constraint("Vertical", 6))
sketch4.addConstraint(Sketcher.Constraint("Horizontal", 7))
sketch4.addConstraint(Sketcher.Constraint("Vertical", 8))
sketch4.addConstraint(Sketcher.Constraint("Horizontal", 9))
sketch4.addConstraint(Sketcher.Constraint("Vertical", 10))
sketch4.addConstraint(Sketcher.Constraint("Horizontal", 11))
sketch4.addConstraint(Sketcher.Constraint("Vertical", 12))
sketch4.addConstraint(Sketcher.Constraint("Horizontal", 13))
sketch4.addConstraint(Sketcher.Constraint("Vertical", 14))
sketch4.addConstraint(Sketcher.Constraint("Horizontal", 15))
sketch4.addConstraint(Sketcher.Constraint("Vertical", 16))
sketch4.addConstraint(Sketcher.Constraint("Horizontal", 17))
sketch4.addConstraint(Sketcher.Constraint("Vertical", 18))
sketch4.addConstraint(Sketcher.Constraint("Horizontal", 19))
sketch4.addConstraint(Sketcher.Constraint("Vertical", 20))
sketch4.addConstraint(Sketcher.Constraint("Horizontal", 21))
sketch4.addConstraint(Sketcher.Constraint("Vertical", 22))
sketch4.addConstraint(Sketcher.Constraint("Horizontal", 23))
sketch4.addConstraint(Sketcher.Constraint("Symmetric", 1, 2, 4, 2, -2))
sketch4.addConstraint(Sketcher.Constraint("Symmetric", 3, 2, 6, 2, -2))
sketch4.addConstraint(Sketcher.Constraint("Symmetric", 9, 2, 12, 2, -2))
sketch4.addConstraint(Sketcher.Constraint("Symmetric", 11, 2, 14, 2, -2))
sketch4.addConstraint(Sketcher.Constraint("Symmetric", 17, 2, 20, 2, -2))
sketch4.addConstraint(Sketcher.Constraint("Symmetric", 19, 2, 22, 2, -2))
sketch4.addConstraint(Sketcher.Constraint("Vertical", 3, 2, 8, 2))
sketch4.addConstraint(Sketcher.Constraint("Vertical", 2, 2, 9, 2))
sketch4.addConstraint(Sketcher.Constraint("Vertical", 11, 2, 16, 2))
sketch4.addConstraint(Sketcher.Constraint("Vertical", 10, 2, 17, 2))
sketch4.addConstraint(Sketcher.Constraint("Equal", 6, 8))
sketch4.addConstraint(Sketcher.Constraint("Equal", 14, 16))
sketch4.addConstraint(Sketcher.Constraint("DistanceY", 0, 2, 8, 2, Q("2 in")))
sketch4.addConstraint(Sketcher.Constraint("DistanceY", 8, 2, 16, 2, Q("2 in")))
sketch4.addConstraint(Sketcher.Constraint("DistanceY", 0, 1, 0, 2, Q("0.25 in")))
sketch4.addConstraint(Sketcher.Constraint("DistanceX", 5, 2, 0, 2, Q("1.75 in")))
sketch4.addConstraint(Sketcher.Constraint("DistanceY", 0, 2, -1, 1, Q("6.625 in")))
sketch4.addConstraint(Sketcher.Constraint("DistanceX", 1, 1, 1, 2, 3.0))
sketch4.setExpression("Constraints[62]", "Params.sketch4_height")
pad3 = doc.addObject("PartDesign::Pad", "Pad002")
body.addObject(pad3)
pad3.Profile = sketch4
pad3.setExpression("Length", "Params.pad3_length")

doc.recompute()
